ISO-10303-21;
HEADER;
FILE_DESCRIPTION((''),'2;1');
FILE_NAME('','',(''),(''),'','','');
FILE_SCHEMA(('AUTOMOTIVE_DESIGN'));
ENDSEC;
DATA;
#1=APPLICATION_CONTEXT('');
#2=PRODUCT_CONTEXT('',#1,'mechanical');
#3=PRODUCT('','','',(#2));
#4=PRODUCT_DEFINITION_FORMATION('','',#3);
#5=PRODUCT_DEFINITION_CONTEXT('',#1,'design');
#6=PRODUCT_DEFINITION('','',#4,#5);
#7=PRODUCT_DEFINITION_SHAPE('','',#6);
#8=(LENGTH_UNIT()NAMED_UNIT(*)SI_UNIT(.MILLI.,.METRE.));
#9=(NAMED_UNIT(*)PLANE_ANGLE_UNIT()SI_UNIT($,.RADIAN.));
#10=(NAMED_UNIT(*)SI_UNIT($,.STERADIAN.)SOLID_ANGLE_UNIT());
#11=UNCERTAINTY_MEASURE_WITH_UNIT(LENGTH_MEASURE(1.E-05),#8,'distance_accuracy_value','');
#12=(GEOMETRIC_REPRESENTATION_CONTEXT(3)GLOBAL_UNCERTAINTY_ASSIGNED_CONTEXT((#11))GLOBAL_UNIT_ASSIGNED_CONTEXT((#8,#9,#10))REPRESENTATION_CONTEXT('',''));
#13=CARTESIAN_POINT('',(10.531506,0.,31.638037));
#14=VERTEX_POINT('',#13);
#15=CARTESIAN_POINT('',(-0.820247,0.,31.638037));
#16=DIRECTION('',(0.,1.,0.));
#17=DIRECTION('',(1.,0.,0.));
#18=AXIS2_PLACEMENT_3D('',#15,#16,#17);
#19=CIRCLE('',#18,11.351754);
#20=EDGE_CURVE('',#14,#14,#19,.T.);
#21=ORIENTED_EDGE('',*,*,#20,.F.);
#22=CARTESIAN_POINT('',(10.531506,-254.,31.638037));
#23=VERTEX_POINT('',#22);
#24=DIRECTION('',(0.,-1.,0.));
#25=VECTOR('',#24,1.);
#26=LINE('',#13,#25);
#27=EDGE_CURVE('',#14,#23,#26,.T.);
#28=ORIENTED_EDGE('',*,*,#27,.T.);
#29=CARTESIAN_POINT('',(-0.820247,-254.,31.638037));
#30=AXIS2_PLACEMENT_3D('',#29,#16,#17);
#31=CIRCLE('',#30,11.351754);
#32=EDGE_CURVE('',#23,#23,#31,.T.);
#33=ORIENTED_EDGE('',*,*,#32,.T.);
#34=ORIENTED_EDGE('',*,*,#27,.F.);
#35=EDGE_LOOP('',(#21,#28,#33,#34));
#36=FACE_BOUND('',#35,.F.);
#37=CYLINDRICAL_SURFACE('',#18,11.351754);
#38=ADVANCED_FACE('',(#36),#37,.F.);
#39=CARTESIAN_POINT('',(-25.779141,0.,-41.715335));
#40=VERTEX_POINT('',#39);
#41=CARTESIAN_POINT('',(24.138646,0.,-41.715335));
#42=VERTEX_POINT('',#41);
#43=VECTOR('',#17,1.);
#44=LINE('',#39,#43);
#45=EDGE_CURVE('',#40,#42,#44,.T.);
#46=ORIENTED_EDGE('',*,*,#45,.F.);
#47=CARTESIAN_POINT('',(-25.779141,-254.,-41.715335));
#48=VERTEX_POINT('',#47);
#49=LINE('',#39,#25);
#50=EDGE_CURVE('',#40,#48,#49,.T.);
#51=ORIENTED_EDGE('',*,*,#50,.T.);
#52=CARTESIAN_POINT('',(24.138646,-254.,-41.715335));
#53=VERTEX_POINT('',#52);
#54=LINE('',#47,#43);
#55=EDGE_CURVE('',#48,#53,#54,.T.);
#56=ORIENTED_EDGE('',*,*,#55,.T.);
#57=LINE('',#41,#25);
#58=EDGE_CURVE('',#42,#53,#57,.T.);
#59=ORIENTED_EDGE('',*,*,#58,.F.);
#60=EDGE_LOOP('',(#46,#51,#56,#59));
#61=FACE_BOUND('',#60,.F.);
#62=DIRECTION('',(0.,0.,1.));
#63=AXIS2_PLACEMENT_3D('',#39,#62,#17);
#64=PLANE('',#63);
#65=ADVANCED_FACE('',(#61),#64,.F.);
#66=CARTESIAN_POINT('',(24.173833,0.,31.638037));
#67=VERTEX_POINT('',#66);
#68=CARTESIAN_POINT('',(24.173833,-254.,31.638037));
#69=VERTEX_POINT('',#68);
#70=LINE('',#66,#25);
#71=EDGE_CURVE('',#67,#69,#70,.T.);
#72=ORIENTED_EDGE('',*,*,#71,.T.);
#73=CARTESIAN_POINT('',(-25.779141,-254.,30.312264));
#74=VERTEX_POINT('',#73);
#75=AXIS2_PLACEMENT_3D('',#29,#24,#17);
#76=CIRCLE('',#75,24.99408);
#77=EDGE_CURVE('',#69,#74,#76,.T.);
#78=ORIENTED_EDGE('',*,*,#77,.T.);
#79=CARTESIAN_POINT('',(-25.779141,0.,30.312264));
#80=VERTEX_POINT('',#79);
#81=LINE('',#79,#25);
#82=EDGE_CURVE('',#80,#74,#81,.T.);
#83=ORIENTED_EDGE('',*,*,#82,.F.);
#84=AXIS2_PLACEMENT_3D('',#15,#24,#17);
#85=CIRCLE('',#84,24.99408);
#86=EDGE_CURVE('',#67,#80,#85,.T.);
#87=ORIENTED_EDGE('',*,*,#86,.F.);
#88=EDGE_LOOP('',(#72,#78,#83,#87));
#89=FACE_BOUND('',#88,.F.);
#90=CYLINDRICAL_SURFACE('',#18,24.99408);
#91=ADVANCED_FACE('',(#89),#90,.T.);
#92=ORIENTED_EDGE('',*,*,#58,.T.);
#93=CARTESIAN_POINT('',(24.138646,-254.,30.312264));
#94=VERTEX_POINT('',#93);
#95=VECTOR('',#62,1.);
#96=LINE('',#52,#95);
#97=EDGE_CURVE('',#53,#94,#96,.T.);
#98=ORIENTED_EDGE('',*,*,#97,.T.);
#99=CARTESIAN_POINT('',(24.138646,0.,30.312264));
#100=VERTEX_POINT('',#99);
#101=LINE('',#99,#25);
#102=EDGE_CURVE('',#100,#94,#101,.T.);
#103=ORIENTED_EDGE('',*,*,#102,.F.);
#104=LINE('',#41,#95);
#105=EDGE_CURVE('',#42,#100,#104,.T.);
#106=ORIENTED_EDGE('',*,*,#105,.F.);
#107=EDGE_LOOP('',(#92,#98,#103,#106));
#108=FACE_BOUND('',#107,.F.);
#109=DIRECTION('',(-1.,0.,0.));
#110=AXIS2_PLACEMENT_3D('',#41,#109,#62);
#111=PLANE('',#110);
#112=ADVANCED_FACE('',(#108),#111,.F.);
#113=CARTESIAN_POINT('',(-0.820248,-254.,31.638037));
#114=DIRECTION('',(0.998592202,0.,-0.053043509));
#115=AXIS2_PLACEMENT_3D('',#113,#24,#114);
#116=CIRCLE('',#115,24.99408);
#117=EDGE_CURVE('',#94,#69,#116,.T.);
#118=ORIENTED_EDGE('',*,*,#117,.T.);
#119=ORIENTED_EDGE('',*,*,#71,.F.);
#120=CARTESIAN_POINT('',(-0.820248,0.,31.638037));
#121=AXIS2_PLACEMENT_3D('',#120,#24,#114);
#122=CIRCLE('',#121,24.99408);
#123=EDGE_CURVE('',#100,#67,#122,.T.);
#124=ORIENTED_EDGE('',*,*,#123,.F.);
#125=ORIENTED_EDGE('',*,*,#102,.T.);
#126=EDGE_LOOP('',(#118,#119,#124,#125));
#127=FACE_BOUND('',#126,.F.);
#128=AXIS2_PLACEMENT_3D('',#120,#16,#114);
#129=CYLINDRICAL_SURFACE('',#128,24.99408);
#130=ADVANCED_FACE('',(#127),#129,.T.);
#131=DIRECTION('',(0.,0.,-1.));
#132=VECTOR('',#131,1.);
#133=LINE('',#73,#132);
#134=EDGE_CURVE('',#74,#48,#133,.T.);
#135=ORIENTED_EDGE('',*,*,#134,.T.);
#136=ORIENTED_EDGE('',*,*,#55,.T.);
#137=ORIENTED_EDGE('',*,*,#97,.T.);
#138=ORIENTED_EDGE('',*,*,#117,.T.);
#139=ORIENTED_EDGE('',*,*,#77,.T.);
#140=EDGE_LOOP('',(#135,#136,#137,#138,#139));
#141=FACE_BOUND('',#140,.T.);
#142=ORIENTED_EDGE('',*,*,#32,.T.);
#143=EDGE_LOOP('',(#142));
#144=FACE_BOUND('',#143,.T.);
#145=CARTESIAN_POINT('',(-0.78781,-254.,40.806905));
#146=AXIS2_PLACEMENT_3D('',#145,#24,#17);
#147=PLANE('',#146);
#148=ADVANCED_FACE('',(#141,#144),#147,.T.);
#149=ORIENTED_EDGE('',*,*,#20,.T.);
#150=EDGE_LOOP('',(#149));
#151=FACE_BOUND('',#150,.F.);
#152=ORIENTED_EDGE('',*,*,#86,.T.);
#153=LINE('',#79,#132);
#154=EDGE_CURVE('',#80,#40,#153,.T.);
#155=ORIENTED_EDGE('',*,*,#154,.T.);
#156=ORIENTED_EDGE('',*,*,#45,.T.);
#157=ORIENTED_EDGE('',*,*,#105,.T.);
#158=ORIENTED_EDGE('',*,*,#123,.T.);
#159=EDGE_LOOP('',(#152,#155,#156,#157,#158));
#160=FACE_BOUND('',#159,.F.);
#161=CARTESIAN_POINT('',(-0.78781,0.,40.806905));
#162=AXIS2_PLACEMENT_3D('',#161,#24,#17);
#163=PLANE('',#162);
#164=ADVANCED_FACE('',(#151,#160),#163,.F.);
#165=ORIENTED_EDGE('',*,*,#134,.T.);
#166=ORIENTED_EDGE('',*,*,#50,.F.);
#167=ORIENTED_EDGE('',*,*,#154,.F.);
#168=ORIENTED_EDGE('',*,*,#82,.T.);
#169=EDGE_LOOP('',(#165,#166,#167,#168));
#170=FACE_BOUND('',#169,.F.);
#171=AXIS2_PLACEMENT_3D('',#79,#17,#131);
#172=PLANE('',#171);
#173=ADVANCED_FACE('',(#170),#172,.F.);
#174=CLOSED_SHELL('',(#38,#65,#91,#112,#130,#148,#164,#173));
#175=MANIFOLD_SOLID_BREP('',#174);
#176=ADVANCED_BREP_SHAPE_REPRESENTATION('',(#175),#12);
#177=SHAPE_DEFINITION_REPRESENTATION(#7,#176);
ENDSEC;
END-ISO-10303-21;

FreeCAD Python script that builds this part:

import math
import FreeCAD as App
import Part
import Sketcher
Q = App.Units.Quantity

doc = App.newDocument("Part")
params = doc.addObject("Spreadsheet::Sheet", "Params")
for row, (alias, value) in enumerate([
    ("pad1_length", "10 in"),
], start=1):
    params.set(f"A{row}", alias)
    params.set(f"B{row}", "=" + value)
    params.setAlias(f"B{row}", alias)

body = doc.addObject("PartDesign::Body", "Body")

# Sketch on XZ plane
sketch1 = body.newObject("Sketcher::SketchObject", "Sketch")
sketch1.AttachmentSupport = (doc.getObject("XZ_Plane"), [""])
sketch1.MapMode = "FlatFace"
sketch1.addGeometry(Part.ArcOfCircle(Part.Circle(App.Vector(-0.820248, 31.638037, 0), App.Vector(0, 0, 1), 24.99408), math.radians(-3.040596), math.radians(0)), False)
sketch1.addGeometry(Part.ArcOfCircle(Part.Circle(App.Vector(-0.820247, 31.638037, 0), App.Vector(0, 0, 1), 24.99408), math.radians(0), math.radians(183.040596)), False)
sketch1.addGeometry(Part.LineSegment(App.Vector(-25.779141, 30.312264, 0), App.Vector(-25.779141, -41.715335, 0)), False)
sketch1.addGeometry(Part.LineSegment(App.Vector(-25.779141, -41.715335, 0), App.Vector(24.138646, -41.715335, 0)), False)
sketch1.addGeometry(Part.LineSegment(App.Vector(24.138646, -41.715335, 0), App.Vector(24.138646, 30.312264, 0)), False)
sketch1.addGeometry(Part.Circle(App.Vector(-0.820247, 31.638037, 0), App.Vector(0, 0, 1), 11.351754), False)
sketch1.addConstraint(Sketcher.Constraint("Tangent", 0, 2, 1, 1))
sketch1.addConstraint(Sketcher.Constraint("Coincident", 1, 2, 2, 1))
sketch1.addConstraint(Sketcher.Constraint("Coincident", 2, 2, 3, 1))
sketch1.addConstraint(Sketcher.Constraint("Coincident", 3, 2, 4, 1))
sketch1.addConstraint(Sketcher.Constraint("Coincident", 4, 2, 0, 1))
sketch1.addConstraint(Sketcher.Constraint("Vertical", 2))
sketch1.addConstraint(Sketcher.Constraint("Horizontal", 3))
sketch1.addConstraint(Sketcher.Constraint("Vertical", 4))
sketch1.addConstraint(Sketcher.Constraint("Coincident", 5, 3, 0, 3))
sketch1.addConstraint(Sketcher.Constraint("Equal", 0, 1))
sketch1.addConstraint(Sketcher.Constraint("Horizontal", 5, 3, 0, 2))
sketch1.addConstraint(Sketcher.Constraint("Horizontal", 1, 2, 4, 2))
sketch1.addConstraint(Sketcher.Constraint("Radius", 0, Q("24.99408 mm")))
sketch1.addConstraint(Sketcher.Constraint("Diameter", 5, Q("22.703508 mm")))
sketch1.addConstraint(Sketcher.Constraint("DistanceY", 2, 2, 2, 1, Q("72.027599 mm")))
sketch1.addConstraint(Sketcher.Constraint("DistanceX", 3, 1, 3, 2, Q("49.917787 mm")))
sketch1.addConstraint(Sketcher.Constraint("DistanceX", 1, 2, -1, 1, Q("25.779141 mm")))
sketch1.addConstraint(Sketcher.Constraint("DistanceY", -1, 1, 0, 3, Q("31.638037 mm")))
pad1 = body.newObject("PartDesign::Pad", "Pad")
pad1.Profile = sketch1
pad1.setExpression("Length", "Params.pad1_length")

doc.recompute()
